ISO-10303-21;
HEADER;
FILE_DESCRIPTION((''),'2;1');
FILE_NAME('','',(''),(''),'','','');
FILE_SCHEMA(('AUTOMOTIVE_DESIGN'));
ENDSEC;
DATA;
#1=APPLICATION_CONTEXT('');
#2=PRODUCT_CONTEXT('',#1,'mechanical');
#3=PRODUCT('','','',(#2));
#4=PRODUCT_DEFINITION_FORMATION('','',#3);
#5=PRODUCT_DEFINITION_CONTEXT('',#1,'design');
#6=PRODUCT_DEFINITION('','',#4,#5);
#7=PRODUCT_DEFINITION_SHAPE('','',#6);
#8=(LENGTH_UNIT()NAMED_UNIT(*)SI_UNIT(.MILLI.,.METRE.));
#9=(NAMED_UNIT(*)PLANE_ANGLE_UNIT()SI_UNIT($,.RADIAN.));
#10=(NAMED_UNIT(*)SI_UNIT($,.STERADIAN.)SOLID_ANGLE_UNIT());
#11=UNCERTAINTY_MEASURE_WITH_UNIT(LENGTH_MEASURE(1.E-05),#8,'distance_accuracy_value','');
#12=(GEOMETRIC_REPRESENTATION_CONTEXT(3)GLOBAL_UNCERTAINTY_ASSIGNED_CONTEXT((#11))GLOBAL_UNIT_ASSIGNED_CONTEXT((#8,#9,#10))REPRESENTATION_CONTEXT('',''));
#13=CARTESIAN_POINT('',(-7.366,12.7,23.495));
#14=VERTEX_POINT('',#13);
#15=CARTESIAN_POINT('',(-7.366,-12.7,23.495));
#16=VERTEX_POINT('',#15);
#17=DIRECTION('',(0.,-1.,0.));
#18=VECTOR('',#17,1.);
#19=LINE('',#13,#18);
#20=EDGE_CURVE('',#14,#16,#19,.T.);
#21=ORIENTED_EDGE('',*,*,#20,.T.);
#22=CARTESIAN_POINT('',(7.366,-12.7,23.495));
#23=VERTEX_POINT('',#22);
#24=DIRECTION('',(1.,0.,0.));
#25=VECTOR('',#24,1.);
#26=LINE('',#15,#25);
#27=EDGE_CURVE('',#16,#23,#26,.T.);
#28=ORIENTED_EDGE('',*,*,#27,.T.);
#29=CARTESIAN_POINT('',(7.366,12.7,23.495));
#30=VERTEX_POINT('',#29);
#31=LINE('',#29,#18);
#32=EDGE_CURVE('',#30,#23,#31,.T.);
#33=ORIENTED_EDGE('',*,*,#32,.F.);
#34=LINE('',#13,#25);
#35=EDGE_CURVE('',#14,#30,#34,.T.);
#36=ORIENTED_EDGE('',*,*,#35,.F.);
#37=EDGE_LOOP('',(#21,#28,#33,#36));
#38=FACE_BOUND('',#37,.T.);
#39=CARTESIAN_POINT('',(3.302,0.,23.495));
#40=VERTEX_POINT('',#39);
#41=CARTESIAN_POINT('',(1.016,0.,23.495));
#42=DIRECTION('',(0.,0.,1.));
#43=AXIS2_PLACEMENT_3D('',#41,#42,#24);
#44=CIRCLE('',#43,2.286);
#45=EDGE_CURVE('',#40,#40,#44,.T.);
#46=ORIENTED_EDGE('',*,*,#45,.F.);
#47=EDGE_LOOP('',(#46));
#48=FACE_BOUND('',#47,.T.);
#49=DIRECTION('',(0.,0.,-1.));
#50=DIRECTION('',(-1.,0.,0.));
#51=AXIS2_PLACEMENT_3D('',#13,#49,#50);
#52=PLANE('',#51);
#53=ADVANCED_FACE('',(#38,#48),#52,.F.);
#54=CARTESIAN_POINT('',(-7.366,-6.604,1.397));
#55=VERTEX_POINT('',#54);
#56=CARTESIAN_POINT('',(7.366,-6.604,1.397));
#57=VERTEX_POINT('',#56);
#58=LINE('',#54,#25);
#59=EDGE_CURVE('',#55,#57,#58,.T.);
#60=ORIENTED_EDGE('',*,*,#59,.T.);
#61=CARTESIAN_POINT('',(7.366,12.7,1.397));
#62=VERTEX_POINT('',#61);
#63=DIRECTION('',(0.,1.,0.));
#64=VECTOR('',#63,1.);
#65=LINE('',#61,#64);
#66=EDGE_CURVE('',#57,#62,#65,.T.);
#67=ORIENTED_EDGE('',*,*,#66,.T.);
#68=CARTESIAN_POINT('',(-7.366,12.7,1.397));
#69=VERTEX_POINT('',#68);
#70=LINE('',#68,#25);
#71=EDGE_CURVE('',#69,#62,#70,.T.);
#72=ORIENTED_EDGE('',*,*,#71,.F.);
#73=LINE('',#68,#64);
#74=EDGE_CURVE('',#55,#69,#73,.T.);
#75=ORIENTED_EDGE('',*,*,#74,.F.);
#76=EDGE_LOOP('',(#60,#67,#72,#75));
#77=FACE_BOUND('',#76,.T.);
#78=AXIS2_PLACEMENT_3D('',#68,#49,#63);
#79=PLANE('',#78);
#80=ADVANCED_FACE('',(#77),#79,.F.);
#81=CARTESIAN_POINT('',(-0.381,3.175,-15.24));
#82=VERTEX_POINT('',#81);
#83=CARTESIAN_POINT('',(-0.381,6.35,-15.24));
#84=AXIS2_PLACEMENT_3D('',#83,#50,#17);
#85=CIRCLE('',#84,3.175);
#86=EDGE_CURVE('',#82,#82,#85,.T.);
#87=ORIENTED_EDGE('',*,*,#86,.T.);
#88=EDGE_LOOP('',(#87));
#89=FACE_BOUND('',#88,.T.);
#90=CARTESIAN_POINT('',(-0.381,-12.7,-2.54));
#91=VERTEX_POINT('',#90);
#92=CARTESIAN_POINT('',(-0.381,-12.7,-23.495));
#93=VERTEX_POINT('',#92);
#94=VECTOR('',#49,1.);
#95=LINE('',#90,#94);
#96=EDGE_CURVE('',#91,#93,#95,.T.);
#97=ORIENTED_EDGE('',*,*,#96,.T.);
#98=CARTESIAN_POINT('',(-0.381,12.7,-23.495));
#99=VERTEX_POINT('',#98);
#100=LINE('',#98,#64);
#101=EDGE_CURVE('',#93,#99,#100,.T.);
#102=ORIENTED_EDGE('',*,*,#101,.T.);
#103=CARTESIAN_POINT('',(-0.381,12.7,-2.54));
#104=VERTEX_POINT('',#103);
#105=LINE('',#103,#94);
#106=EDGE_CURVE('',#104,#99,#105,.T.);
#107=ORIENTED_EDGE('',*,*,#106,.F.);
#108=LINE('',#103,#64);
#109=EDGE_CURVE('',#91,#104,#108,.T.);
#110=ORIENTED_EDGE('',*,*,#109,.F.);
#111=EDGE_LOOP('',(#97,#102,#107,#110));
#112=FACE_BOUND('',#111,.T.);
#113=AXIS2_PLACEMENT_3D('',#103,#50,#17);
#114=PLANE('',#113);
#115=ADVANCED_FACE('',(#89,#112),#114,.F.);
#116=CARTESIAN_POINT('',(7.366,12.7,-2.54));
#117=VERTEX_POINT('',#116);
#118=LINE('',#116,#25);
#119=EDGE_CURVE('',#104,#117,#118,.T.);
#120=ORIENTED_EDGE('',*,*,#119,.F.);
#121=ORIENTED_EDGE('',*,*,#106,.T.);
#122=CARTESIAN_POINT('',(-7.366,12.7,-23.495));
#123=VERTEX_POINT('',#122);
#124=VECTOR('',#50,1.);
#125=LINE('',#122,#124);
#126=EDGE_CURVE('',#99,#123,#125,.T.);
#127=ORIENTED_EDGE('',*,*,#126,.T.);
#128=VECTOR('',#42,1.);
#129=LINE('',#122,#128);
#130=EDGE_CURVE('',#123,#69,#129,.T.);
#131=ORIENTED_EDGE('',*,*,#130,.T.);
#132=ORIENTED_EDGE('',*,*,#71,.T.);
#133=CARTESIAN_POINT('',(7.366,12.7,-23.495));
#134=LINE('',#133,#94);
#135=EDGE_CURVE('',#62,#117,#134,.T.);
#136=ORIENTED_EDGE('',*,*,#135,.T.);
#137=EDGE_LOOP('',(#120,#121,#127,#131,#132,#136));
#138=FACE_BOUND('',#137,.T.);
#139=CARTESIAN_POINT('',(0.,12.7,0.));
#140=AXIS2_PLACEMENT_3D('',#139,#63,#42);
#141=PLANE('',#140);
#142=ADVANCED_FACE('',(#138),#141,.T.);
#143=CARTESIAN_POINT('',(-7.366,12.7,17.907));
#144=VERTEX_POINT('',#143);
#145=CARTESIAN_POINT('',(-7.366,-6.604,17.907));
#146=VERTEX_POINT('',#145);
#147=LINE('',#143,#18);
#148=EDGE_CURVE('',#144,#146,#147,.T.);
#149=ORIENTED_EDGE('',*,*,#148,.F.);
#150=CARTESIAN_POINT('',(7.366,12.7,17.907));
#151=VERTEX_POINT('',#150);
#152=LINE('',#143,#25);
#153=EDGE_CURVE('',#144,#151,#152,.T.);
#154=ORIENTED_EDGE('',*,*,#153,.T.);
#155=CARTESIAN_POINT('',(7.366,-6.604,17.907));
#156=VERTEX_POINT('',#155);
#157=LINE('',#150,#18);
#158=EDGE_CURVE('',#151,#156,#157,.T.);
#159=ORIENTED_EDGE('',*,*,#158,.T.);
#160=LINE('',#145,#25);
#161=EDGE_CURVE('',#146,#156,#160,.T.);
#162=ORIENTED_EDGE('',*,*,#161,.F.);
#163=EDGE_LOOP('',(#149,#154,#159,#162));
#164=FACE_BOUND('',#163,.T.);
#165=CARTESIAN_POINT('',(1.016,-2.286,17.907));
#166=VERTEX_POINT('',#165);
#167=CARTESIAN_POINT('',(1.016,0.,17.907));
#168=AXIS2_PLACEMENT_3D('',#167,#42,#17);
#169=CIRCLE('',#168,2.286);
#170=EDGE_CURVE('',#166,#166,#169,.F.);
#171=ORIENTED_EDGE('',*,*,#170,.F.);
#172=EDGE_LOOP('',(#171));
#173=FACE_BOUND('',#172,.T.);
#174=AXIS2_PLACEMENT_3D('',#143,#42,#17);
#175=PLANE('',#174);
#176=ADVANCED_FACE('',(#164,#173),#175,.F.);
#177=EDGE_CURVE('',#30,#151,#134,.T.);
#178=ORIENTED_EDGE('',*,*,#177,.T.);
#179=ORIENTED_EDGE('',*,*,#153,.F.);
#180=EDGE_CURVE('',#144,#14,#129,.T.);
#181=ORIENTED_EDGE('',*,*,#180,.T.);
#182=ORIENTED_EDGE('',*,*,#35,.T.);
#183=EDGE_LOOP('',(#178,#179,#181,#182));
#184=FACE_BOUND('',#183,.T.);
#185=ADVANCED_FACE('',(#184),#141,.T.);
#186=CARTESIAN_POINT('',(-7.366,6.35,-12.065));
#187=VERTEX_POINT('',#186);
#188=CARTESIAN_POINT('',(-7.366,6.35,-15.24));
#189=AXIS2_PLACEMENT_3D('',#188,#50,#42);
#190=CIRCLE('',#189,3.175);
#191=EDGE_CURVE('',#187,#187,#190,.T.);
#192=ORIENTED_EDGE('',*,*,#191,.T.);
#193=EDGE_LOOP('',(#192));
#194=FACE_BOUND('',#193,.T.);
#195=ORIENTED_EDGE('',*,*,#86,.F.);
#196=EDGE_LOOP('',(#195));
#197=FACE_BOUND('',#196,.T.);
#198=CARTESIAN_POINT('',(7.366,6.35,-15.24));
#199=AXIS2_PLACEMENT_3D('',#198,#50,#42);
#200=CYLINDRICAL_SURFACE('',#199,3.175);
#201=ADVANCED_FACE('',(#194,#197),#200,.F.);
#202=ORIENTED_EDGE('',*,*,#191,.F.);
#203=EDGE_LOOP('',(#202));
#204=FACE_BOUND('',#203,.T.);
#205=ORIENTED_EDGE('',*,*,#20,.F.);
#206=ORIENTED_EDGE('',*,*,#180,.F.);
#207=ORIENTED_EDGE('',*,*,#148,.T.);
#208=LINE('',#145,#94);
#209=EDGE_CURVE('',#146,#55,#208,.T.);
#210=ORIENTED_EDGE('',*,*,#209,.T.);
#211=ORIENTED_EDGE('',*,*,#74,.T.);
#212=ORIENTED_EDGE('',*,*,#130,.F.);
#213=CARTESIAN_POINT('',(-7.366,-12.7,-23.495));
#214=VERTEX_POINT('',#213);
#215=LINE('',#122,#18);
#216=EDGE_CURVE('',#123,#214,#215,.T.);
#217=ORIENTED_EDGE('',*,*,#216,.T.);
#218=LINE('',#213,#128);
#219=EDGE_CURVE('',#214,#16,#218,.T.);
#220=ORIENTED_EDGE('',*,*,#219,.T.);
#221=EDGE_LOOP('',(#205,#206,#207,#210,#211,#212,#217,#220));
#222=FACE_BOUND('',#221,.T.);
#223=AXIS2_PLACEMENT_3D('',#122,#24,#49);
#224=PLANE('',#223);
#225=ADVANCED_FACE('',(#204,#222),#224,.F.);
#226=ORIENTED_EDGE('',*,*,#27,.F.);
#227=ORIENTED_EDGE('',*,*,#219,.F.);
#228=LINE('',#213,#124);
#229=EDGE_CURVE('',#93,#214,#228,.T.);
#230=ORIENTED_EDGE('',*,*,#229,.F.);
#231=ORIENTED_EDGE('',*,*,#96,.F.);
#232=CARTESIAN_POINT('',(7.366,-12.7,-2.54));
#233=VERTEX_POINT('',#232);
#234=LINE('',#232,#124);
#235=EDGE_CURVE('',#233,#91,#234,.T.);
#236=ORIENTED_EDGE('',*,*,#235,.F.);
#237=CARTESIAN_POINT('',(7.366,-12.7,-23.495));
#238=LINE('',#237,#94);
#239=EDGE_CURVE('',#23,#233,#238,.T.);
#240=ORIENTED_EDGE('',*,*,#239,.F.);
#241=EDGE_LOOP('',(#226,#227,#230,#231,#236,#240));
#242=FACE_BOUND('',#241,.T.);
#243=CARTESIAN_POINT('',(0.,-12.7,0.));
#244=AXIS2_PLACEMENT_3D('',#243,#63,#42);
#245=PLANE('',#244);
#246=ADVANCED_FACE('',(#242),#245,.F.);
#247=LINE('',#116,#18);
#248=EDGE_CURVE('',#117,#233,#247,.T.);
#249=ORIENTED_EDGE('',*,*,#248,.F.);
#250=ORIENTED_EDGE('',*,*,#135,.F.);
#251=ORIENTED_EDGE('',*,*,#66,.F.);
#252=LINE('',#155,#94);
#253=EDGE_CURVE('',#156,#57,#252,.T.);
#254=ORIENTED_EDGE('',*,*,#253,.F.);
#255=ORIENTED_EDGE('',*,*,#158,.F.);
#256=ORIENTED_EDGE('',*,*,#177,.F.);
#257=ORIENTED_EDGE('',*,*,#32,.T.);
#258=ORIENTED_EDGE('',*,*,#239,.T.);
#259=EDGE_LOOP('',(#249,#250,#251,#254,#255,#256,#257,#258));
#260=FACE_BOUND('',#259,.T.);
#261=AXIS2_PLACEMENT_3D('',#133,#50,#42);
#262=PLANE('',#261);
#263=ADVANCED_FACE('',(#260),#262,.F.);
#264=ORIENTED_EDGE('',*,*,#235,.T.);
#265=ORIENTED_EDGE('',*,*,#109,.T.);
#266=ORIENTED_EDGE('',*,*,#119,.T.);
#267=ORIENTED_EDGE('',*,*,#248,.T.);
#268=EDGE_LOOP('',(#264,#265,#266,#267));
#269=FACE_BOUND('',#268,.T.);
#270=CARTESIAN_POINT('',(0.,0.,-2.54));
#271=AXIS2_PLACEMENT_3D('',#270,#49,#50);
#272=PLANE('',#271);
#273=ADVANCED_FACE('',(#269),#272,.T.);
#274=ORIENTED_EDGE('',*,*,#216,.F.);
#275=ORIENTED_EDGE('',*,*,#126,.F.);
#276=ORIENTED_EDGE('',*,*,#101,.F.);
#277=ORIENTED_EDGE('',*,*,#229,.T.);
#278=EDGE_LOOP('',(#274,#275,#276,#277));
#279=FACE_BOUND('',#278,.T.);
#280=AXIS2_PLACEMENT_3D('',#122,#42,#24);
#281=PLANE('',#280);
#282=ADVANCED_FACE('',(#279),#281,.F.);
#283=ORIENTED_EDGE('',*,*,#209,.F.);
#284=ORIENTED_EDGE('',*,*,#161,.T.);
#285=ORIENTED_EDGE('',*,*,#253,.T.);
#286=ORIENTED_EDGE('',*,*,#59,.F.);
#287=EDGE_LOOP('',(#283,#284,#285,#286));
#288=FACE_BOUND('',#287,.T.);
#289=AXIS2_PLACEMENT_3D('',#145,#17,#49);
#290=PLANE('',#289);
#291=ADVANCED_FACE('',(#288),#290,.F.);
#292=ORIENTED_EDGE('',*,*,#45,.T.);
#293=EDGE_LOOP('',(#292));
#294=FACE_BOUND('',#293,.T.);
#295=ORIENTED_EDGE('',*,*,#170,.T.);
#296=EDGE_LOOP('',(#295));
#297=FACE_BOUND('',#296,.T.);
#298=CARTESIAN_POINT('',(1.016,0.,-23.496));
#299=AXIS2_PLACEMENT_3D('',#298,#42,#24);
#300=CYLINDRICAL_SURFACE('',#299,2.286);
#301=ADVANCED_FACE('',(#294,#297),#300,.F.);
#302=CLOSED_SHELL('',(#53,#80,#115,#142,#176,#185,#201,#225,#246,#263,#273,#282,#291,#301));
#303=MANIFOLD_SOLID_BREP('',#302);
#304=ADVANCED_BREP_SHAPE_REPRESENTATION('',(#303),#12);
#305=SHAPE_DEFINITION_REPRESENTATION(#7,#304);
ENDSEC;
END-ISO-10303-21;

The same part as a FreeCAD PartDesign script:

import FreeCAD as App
import Part
import Sketcher
Q = App.Units.Quantity

doc = App.newDocument("Part")
params = doc.addObject("Spreadsheet::Sheet", "Params")
for row, (alias, value) in enumerate([
    ("sketch1_width", "0.58 in"),
    ("sketch1_height", "1.85 in"),
    ("pad1_length", "1 in"),
    ("sketch2_width", "0.76 in"),
    ("sketch2_height", "0.65 in"),
    ("sketch3_diameter", "0.18 in"),
    ("sketch4_height", "1 in"),
    ("sketch4_width", "0.305 in"),
    ("pocket3_length", "0.825 in"),
    ("sketch5_diameter", "0.25 in"),
], start=1):
    params.set(f"A{row}", alias)
    params.set(f"B{row}", "=" + value)
    params.setAlias(f"B{row}", alias)

body = doc.addObject("PartDesign::Body", "Body")

# Sketch on XZ plane
sketch1 = body.newObject("Sketcher::SketchObject", "Sketch")
sketch1.AttachmentSupport = (doc.getObject("XZ_Plane"), [""])
sketch1.MapMode = "FlatFace"
sketch1.addGeometry([
    Part.LineSegment(App.Vector(-7, -23, 0), App.Vector(-7, 23, 0)),
    Part.LineSegment(App.Vector(-7, 23, 0), App.Vector(7, 23, 0)),
    Part.LineSegment(App.Vector(7, 23, 0), App.Vector(7, -23, 0)),
    Part.LineSegment(App.Vector(7, -23, 0), App.Vector(-7, -23, 0)),
], False)
sketch1.addConstraint([
    Sketcher.Constraint("Coincident", 0, 2, 1, 1),
    Sketcher.Constraint("Coincident", 1, 2, 2, 1),
    Sketcher.Constraint("Coincident", 2, 2, 3, 1),
    Sketcher.Constraint("Coincident", 3, 2, 0, 1),
    Sketcher.Constraint("Vertical", 0),
    Sketcher.Constraint("Horizontal", 1),
    Sketcher.Constraint("Vertical", 2),
    Sketcher.Constraint("Horizontal", 3),
    Sketcher.Constraint("Symmetric", 0, 2, 2, 2, -1, 1),
    Sketcher.Constraint("DistanceX", 1, 1, 1, 2, Q("0.58 in")),
    Sketcher.Constraint("DistanceY", 0, 1, 0, 2, Q("1.85 in")),
])
sketch1.setExpression("Constraints[9]", "Params.sketch1_width")
sketch1.setExpression("Constraints[10]", "Params.sketch1_height")
pad1 = body.newObject("PartDesign::Pad", "Pad")
pad1.Profile = sketch1
pad1.setExpression("Length", "Params.pad1_length")
pad1.Midplane = True

# Sketch on YZ plane
sketch2 = body.newObject("Sketcher::SketchObject", "Sketch001")
sketch2.AttachmentSupport = (doc.getObject("YZ_Plane"), [""])
sketch2.MapMode = "FlatFace"
sketch2.AttachmentOffset = App.Placement(App.Vector(0, 0, 0.29 * 25.4), App.Rotation())
sketch2.addGeometry([
    Part.LineSegment(App.Vector(13, 18, 0), App.Vector(-7, 18, 0)),
    Part.LineSegment(App.Vector(-7, 18, 0), App.Vector(-7, 1, 0)),
    Part.LineSegment(App.Vector(-7, 1, 0), App.Vector(13, 1, 0)),
    Part.LineSegment(App.Vector(13, 1, 0), App.Vector(13, 18, 0)),
], False)
sketch2.addConstraint([
    Sketcher.Constraint("Coincident", 0, 2, 1, 1),
    Sketcher.Constraint("Coincident", 1, 2, 2, 1),
    Sketcher.Constraint("Coincident", 2, 2, 3, 1),
    Sketcher.Constraint("Coincident", 3, 2, 0, 1),
    Sketcher.Constraint("Horizontal", 0),
    Sketcher.Constraint("Vertical", 1),
    Sketcher.Constraint("Horizontal", 2),
    Sketcher.Constraint("Vertical", 3),
    Sketcher.Constraint("DistanceX", 0, 2, 0, 1, Q("0.76 in")),
    Sketcher.Constraint("DistanceY", 1, 2, 1, 1, Q("0.65 in")),
    Sketcher.Constraint("DistanceX", -1, 1, 2, 2, Q("0.5 in")),
    Sketcher.Constraint("DistanceY", -1, 1, 0, 2, Q("0.705 in")),
])
sketch2.setExpression("Constraints[8]", "Params.sketch2_width")
sketch2.setExpression("Constraints[9]", "Params.sketch2_height")
pocket1 = body.newObject("PartDesign::Pocket", "Pocket")
pocket1.Profile = sketch2
pocket1.Type = "ThroughAll"

# Sketch on XY plane
sketch3 = body.newObject("Sketcher::SketchObject", "Sketch002")
sketch3.AttachmentSupport = (doc.getObject("XY_Plane"), [""])
sketch3.MapMode = "FlatFace"
sketch3.AttachmentOffset = App.Placement(App.Vector(0, 0, 0.925 * 25.4), App.Rotation())
sketch3.addGeometry(Part.Circle(App.Vector(1, 0, 0), App.Vector(0, 0, 1), 2.3), False)
sketch3.addConstraint([
    Sketcher.Constraint("PointOnObject", 0, 3, -1),
    Sketcher.Constraint("Diameter", 0, Q("0.18 in")),
    Sketcher.Constraint("DistanceX", -1, 1, 0, 3, Q("0.04 in")),
])
sketch3.setExpression("Constraints[1]", "Params.sketch3_diameter")
pocket2 = body.newObject("PartDesign::Pocket", "Pocket001")
pocket2.Profile = sketch3
pocket2.Type = "UpToFirst"

# Sketch on XY plane
sketch4 = body.newObject("Sketcher::SketchObject", "Sketch003")
sketch4.AttachmentSupport = (doc.getObject("XY_Plane"), [""])
sketch4.MapMode = "FlatFace"
sketch4.AttachmentOffset = App.Placement(App.Vector(0, 0, -0.925 * 25.4), App.Rotation())
sketch4.addGeometry([
    Part.LineSegment(App.Vector(7, 13, 0), App.Vector(7, -13, 0)),
    Part.LineSegment(App.Vector(7, -13, 0), App.Vector(0, -13, 0)),
    Part.LineSegment(App.Vector(0, -13, 0), App.Vector(0, 13, 0)),
    Part.LineSegment(App.Vector(0, 13, 0), App.Vector(7, 13, 0)),
], False)
sketch4.addConstraint([
    Sketcher.Constraint("Coincident", 0, 2, 1, 1),
    Sketcher.Constraint("Coincident", 1, 2, 2, 1),
    Sketcher.Constraint("Coincident", 2, 2, 3, 1),
    Sketcher.Constraint("Coincident", 3, 2, 0, 1),
    Sketcher.Constraint("Vertical", 0),
    Sketcher.Constraint("Horizontal", 1),
    Sketcher.Constraint("Vertical", 2),
    Sketcher.Constraint("Horizontal", 3),
    Sketcher.Constraint("DistanceY", 0, 2, 0, 1, Q("1 in")),
    Sketcher.Constraint("DistanceY", 0, 2, -1, 1, Q("0.5 in")),
    Sketcher.Constraint("DistanceX", 1, 2, 1, 1, Q("0.305 in")),
    Sketcher.Constraint("DistanceX", -1, 1, 0, 2, Q("0.29 in")),
])
sketch4.setExpression("Constraints[8]", "Params.sketch4_height")
sketch4.setExpression("Constraints[10]", "Params.sketch4_width")
pocket3 = body.newObject("PartDesign::Pocket", "Pocket002")
pocket3.Profile = sketch4
pocket3.setExpression("Length", "Params.pocket3_length")
pocket3.Reversed = True

# Sketch on YZ plane
sketch5 = body.newObject("Sketcher::SketchObject", "Sketch004")
sketch5.AttachmentSupport = (doc.getObject("YZ_Plane"), [""])
sketch5.MapMode = "FlatFace"
sketch5.AttachmentOffset = App.Placement(App.Vector(0, 0, -0.29 * 25.4), App.Rotation())
sketch5.addGeometry(Part.Circle(App.Vector(6.3, -15.2, 0), App.Vector(0, 0, 1), 3.2), False)
sketch5.addConstraint([
    Sketcher.Constraint("Diameter", 0, Q("0.25 in")),
    Sketcher.Constraint("DistanceY", 0, 3, -1, 1, Q("0.6 in")),
    Sketcher.Constraint("DistanceX", -1, 1, 0, 3, Q("0.25 in")),
])
sketch5.setExpression("Constraints[0]", "Params.sketch5_diameter")
pocket4 = body.newObject("PartDesign::Pocket", "Pocket003")
pocket4.Profile = sketch5
pocket4.Type = "ThroughAll"
pocket4.Reversed = True

doc.recompute()
